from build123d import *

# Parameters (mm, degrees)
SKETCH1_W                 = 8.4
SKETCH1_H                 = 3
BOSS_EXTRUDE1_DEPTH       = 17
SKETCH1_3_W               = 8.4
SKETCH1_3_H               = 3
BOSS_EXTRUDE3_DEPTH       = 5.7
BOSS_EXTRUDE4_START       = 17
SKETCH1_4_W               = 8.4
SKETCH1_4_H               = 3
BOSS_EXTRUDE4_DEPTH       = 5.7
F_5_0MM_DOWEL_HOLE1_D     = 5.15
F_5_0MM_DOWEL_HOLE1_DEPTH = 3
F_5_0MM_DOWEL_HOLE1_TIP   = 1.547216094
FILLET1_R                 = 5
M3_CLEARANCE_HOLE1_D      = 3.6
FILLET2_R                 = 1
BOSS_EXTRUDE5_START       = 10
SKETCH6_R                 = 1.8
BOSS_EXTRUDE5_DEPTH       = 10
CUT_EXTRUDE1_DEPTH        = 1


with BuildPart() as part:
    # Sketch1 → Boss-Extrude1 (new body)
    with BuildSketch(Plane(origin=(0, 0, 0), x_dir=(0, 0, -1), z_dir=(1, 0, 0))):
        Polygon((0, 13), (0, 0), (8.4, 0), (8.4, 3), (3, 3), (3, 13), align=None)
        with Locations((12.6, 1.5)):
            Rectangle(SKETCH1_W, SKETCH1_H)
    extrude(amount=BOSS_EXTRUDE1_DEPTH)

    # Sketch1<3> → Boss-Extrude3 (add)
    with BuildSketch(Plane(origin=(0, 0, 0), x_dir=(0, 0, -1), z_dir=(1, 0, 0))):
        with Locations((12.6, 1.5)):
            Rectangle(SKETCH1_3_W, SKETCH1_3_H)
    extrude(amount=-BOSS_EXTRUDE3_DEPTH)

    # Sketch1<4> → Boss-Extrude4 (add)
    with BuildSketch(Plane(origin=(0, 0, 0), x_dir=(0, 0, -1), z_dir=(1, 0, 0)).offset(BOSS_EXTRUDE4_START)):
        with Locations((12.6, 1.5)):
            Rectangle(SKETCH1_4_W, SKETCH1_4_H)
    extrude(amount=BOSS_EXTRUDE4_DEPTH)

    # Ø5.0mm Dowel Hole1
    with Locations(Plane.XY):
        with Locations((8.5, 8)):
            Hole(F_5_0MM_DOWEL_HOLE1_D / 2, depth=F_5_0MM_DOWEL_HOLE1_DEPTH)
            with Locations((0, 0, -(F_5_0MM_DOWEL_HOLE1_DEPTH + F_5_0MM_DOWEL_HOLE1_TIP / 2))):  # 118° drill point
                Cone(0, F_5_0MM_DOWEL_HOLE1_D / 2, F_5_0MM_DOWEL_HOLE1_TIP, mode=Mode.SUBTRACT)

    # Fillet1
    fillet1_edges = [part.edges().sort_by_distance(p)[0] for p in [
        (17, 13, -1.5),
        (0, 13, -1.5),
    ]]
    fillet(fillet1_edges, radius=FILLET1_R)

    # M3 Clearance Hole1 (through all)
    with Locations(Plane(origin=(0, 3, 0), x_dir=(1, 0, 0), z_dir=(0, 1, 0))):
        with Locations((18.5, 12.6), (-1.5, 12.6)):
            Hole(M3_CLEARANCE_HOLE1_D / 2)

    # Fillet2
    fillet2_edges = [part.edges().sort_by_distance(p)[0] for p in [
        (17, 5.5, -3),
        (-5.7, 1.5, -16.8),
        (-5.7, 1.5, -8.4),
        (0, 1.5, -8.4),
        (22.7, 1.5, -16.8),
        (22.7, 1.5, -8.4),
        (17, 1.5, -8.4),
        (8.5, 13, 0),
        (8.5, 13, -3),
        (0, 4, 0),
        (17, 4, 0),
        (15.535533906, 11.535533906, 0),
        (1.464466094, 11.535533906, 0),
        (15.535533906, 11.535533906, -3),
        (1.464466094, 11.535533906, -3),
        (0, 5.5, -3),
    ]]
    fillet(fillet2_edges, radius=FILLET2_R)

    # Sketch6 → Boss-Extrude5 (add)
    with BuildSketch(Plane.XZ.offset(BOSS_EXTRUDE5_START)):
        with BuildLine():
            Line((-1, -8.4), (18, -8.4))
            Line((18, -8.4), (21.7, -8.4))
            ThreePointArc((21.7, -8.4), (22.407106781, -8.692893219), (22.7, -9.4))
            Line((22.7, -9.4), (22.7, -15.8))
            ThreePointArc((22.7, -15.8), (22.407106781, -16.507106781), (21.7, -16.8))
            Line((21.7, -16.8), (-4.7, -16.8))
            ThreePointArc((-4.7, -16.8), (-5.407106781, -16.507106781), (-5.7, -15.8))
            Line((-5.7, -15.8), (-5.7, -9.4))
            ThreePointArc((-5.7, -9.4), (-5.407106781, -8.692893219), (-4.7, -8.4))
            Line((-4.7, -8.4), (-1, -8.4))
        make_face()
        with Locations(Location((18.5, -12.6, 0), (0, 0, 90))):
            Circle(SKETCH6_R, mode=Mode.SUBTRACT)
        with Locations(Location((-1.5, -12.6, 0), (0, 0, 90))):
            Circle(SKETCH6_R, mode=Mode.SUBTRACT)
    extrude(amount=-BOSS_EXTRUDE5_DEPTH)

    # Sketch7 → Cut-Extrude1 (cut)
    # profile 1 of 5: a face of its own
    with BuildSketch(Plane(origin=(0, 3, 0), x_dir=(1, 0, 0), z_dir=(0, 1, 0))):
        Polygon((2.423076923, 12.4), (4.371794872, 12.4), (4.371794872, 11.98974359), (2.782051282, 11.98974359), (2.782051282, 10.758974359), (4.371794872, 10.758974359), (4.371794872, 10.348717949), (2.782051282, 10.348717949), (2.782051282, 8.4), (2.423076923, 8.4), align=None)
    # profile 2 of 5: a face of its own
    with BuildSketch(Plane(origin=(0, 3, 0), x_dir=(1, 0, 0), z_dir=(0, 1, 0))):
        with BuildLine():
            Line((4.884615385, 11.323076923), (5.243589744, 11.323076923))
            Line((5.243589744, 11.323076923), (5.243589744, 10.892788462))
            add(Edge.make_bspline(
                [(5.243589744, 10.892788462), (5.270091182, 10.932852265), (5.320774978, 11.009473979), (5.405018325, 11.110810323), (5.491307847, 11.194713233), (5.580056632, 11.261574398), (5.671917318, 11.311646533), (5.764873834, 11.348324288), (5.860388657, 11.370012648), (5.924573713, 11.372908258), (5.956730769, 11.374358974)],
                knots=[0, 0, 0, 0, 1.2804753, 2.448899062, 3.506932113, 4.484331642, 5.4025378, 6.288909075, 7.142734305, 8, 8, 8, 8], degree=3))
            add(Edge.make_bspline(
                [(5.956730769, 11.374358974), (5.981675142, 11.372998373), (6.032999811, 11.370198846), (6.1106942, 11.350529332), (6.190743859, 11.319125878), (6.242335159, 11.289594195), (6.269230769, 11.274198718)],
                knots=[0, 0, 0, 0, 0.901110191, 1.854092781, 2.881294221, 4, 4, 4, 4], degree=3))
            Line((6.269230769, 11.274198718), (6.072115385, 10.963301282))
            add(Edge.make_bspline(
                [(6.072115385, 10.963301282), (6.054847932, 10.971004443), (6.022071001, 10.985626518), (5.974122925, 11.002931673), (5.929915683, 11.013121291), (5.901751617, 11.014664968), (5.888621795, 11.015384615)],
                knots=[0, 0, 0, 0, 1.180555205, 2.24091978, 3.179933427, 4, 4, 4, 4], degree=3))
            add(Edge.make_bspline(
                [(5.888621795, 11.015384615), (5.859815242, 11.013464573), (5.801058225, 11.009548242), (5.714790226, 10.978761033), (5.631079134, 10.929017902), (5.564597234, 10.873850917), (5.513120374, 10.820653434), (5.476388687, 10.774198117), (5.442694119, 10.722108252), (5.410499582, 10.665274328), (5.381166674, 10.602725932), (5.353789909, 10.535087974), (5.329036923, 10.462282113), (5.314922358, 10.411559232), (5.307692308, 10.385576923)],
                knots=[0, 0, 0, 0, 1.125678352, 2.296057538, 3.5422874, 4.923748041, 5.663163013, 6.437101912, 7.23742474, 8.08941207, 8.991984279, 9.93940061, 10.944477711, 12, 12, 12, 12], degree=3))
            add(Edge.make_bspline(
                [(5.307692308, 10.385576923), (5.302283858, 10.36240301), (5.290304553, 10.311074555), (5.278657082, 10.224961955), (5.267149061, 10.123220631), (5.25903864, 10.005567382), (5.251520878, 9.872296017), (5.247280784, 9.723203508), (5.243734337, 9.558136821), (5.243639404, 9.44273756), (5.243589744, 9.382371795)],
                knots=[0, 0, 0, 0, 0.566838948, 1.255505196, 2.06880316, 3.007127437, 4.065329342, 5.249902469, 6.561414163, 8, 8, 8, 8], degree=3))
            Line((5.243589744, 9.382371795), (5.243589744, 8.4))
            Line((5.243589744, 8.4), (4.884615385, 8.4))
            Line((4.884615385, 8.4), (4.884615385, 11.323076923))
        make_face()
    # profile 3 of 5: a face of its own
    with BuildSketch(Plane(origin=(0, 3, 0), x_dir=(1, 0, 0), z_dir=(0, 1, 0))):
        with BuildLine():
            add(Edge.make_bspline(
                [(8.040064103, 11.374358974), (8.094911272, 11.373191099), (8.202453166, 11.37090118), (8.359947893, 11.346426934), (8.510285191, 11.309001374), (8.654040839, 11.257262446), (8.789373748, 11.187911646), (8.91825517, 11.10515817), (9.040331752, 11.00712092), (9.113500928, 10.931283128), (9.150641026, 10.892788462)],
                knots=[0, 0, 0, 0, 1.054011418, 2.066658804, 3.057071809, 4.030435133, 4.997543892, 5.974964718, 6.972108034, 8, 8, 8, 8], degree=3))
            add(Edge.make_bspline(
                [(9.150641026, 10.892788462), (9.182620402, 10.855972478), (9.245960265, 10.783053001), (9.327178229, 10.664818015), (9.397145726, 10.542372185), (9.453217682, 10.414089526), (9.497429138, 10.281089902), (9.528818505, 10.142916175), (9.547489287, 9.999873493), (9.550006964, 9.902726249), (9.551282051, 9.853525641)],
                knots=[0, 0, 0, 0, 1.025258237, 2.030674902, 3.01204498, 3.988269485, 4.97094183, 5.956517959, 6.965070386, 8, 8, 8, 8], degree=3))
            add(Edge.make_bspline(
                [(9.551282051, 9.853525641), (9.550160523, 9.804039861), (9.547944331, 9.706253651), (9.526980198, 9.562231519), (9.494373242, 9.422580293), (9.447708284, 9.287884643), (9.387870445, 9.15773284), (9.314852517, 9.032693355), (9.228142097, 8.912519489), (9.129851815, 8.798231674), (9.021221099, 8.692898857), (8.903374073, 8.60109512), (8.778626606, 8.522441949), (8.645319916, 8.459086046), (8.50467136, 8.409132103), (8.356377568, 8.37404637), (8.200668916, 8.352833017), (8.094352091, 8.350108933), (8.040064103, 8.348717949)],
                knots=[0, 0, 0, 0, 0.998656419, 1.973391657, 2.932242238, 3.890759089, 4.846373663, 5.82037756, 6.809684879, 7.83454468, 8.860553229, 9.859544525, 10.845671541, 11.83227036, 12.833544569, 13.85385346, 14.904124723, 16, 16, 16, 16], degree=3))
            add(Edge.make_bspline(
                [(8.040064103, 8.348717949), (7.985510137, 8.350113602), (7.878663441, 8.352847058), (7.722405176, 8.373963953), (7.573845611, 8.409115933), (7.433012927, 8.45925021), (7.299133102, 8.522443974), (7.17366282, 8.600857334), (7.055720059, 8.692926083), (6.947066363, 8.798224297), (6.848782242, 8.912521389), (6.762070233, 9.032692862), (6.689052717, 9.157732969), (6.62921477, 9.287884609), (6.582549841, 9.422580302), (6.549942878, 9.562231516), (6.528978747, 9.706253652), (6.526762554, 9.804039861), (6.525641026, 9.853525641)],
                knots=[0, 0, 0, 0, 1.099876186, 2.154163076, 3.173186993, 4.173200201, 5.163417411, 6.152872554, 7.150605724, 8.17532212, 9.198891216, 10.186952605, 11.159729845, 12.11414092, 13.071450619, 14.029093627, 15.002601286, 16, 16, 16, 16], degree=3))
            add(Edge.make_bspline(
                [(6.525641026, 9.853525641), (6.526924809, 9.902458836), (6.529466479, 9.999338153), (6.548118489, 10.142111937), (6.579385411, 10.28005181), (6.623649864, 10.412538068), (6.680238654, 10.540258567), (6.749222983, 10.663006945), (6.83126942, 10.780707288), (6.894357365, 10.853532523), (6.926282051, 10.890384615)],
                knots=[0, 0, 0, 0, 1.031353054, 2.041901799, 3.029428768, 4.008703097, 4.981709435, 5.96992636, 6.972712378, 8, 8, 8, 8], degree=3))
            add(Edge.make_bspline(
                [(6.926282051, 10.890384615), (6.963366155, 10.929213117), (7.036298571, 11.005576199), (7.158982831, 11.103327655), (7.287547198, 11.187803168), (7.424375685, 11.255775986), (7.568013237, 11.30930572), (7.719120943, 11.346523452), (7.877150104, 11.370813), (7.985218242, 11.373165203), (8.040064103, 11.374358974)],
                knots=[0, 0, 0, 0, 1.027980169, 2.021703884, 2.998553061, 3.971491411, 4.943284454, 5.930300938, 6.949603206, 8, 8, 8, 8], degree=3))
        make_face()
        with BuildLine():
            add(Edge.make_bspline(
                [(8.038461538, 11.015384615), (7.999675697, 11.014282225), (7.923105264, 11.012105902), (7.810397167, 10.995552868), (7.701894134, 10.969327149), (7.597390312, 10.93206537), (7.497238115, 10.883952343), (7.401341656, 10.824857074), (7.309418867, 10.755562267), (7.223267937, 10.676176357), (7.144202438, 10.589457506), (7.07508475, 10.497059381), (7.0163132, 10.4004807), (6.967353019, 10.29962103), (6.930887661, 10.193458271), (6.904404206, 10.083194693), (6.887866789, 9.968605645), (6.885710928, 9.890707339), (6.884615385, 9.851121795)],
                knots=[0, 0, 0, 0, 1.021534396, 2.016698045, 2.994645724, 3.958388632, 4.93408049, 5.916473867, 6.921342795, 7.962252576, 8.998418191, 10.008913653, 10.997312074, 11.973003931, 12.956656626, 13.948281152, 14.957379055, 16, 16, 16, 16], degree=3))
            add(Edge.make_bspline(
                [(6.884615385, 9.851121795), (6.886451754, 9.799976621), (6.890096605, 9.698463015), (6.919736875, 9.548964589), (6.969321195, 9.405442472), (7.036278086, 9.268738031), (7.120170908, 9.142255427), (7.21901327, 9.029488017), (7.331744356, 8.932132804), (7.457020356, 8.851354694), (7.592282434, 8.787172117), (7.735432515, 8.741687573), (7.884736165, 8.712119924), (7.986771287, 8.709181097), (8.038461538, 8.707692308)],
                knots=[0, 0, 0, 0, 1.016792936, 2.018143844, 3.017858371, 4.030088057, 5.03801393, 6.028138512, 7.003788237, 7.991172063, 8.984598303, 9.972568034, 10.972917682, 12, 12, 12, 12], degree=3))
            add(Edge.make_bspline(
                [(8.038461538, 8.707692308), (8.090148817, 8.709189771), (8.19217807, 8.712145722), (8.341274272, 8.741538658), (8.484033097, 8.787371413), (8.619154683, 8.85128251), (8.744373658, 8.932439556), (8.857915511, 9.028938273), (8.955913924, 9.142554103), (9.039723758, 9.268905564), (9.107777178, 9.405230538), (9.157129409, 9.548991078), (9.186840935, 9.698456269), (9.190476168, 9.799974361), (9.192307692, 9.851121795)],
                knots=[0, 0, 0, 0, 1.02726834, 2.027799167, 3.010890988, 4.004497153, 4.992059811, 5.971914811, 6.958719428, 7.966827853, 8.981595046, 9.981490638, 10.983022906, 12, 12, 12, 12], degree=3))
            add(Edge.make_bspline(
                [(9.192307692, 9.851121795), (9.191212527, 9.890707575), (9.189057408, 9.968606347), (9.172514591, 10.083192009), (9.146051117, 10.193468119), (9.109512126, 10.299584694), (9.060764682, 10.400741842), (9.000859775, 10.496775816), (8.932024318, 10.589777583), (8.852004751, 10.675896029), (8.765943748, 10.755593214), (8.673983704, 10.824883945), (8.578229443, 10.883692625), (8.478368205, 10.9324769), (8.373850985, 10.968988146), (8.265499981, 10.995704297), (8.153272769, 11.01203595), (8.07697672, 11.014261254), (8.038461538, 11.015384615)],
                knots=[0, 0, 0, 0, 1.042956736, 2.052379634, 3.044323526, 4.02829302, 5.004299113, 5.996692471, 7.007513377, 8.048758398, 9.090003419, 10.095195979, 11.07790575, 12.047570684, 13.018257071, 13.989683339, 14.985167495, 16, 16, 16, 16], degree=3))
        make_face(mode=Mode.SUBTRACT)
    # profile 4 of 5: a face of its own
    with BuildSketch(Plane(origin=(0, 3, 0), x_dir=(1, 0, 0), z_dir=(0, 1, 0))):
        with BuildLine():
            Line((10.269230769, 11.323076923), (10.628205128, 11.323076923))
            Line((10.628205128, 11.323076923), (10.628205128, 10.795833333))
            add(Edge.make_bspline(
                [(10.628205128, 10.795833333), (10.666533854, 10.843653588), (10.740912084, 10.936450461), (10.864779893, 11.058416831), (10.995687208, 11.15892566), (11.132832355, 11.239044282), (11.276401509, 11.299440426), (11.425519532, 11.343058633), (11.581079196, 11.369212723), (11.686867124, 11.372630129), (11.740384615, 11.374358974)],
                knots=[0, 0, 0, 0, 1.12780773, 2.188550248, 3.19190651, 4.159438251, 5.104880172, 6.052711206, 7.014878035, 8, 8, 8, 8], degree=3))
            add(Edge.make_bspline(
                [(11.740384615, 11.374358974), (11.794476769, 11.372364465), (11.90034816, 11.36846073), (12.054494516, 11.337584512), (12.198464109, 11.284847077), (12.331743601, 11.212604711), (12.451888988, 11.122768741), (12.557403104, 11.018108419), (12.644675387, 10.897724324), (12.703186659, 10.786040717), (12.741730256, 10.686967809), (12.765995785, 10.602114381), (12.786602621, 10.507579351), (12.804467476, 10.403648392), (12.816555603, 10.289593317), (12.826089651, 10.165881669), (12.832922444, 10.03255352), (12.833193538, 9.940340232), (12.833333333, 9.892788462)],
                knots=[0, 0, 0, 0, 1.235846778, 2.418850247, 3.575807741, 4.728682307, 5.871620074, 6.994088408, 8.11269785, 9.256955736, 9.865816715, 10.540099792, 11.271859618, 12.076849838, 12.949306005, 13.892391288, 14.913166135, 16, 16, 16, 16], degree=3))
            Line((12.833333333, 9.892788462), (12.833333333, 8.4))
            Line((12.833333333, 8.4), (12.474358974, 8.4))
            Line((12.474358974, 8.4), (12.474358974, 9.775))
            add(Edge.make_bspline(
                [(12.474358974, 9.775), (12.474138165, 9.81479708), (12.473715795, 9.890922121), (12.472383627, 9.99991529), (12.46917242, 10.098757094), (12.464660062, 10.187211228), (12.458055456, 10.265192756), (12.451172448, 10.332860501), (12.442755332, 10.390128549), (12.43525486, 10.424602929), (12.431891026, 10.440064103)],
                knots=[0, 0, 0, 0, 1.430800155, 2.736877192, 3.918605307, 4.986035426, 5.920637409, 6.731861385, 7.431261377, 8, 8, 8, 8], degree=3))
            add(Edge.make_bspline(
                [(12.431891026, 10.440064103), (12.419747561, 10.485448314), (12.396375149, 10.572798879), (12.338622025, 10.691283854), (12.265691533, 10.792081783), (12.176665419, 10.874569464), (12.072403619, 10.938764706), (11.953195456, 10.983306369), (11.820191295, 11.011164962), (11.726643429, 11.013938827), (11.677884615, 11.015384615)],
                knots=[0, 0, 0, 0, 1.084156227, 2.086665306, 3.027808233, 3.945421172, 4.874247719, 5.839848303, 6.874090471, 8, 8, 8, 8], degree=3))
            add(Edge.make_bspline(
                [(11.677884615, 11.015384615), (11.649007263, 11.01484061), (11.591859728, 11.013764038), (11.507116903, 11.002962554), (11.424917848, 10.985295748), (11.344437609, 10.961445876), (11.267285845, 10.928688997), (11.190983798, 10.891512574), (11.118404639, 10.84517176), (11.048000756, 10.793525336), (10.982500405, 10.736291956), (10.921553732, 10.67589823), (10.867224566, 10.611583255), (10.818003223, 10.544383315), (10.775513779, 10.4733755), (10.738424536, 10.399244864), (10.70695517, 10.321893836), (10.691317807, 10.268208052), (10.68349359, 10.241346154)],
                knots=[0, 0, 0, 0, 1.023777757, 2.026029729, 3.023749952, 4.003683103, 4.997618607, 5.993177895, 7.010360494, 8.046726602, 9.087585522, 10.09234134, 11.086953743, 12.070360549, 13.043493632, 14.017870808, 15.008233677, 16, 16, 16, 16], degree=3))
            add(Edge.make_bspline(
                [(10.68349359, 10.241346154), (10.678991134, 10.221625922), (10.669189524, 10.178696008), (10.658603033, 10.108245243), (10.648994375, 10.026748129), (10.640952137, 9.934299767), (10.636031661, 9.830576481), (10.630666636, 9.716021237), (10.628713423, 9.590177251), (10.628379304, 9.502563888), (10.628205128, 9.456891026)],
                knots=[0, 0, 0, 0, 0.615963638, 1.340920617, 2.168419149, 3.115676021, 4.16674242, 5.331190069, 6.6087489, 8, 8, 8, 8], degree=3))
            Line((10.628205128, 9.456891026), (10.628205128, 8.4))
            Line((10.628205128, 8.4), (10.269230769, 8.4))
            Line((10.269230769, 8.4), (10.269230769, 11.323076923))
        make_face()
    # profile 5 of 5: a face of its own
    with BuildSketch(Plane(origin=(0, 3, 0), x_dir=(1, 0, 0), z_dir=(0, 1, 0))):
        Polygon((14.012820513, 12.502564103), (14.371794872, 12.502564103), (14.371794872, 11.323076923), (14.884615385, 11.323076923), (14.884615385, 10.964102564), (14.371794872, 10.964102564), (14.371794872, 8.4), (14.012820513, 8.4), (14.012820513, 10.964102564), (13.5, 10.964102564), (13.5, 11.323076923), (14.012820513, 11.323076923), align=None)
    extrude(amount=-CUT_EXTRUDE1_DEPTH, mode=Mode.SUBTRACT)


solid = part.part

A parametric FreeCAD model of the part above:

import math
import FreeCAD as App
import Part
import Sketcher

V = App.Vector
Q = App.Units.Quantity


def edges_at(feature, points):
    """Names of the edges that pass closest to the given points."""
    edges = feature.Shape.Edges
    near = lambda p: min(range(len(edges)), key=lambda i: edges[i].distToShape(Part.Vertex(*p))[0])
    return sorted({f"Edge{near(p) + 1}" for p in points})


def add_polygon(sketch, points):
    """Adds a closed chain of lines whose ends are joined by coincident constraints."""
    first, n = sketch.GeometryCount, len(points)
    for a, b in zip(points, points[1:] + points[:1]):
        sketch.addGeometry(Part.LineSegment(App.Vector(*a, 0), App.Vector(*b, 0)), False)
    for i in range(n):
        sketch.addConstraint(Sketcher.Constraint("Coincident", first + i, 2, first + (i + 1) % n, 1))

doc = App.newDocument("Part")
params = doc.addObject("Spreadsheet::Sheet", "Params")
for row, (alias, value) in enumerate([
    ("sketch1_width", "13 mm"),
    ("sketch1_width2", "3 mm"),
    ("sketch1_height", "16.8 mm"),
    ("pad1_length", "17 mm"),
    ("sketch2_width", "3 mm"),
    ("sketch2_height", "8.4 mm"),
    ("pad2_length", "5.7 mm"),
    ("sketch3_width", "3 mm"),
    ("sketch3_height", "8.4 mm"),
    ("pad3_length", "5.7 mm"),
    ("sketch4_diameter", "5.15 mm"),
    ("hole_diameter", "5.15 mm"),
    ("hole_depth", "3 mm"),
    ("fillet_radius", "5 mm"),
    ("sketch5_diameter", "3.6 mm"),
    ("hole2_diameter", "3.6 mm"),
    ("fillet2_radius", "1 mm"),
    ("sketch6_radius", "1 mm"),
    ("sketch6_diameter", "3.6 mm"),
    ("sketch6_width", "26.4 mm"),
    ("sketch6_height", "6.4 mm"),
    ("pad4_length", "10 mm"),
    ("sketch7_height", "4 mm"),
    ("pocket1_length", "1 mm"),
], start=1):
    params.set(f"A{row}", alias)
    params.set(f"B{row}", "=" + value)
    params.setAlias(f"B{row}", alias)

body = doc.addObject("PartDesign::Body", "Body")

sketch1 = body.newObject("Sketcher::SketchObject", "Sketch")
sketch1.AttachmentSupport = (doc.getObject("YZ_Plane"), [""])
sketch1.MapMode = "FlatFace"
add_polygon(sketch1, [(13, 0), (0, 0), (0, -16.8), (3, -16.8), (3, -3), (13, -3)])
sketch1.addConstraint([
    Sketcher.Constraint("Horizontal", 0),
    Sketcher.Constraint("Vertical", 1),
    Sketcher.Constraint("Horizontal", 2),
    Sketcher.Constraint("Vertical", 3),
    Sketcher.Constraint("Horizontal", 4),
    Sketcher.Constraint("Vertical", 5),
    Sketcher.Constraint("Coincident", 0, 2, -1, 1),
    Sketcher.Constraint("Equal", 2, 5),
    Sketcher.Constraint("DistanceX", 0, 2, 0, 1, Q("13 mm")),
    Sketcher.Constraint("DistanceX", 2, 1, 2, 2, Q("3 mm")),
    Sketcher.Constraint("DistanceY", 1, 2, 1, 1, Q("16.8 mm")),
])
sketch1.setExpression("Constraints[14]", "Params.sketch1_width")
sketch1.setExpression("Constraints[15]", "Params.sketch1_width2")
sketch1.setExpression("Constraints[16]", "Params.sketch1_height")
pad1 = body.newObject("PartDesign::Pad", "Pad")
pad1.Profile = sketch1
pad1.setExpression("Length", "Params.pad1_length")

sketch2 = body.newObject("Sketcher::SketchObject", "Sketch001")
sketch2.AttachmentSupport = (doc.getObject("YZ_Plane"), [""])
sketch2.MapMode = "FlatFace"
add_polygon(sketch2, [(3, -8.4), (0, -8.4), (0, -16.8), (3, -16.8)])
sketch2.addConstraint([
    Sketcher.Constraint("Horizontal", 0),
    Sketcher.Constraint("Vertical", 1),
    Sketcher.Constraint("Horizontal", 2),
    Sketcher.Constraint("Vertical", 3),
    Sketcher.Constraint("PointOnObject", 0, 2, -2),
    Sketcher.Constraint("DistanceX", 0, 2, 0, 1, Q("3 mm")),
    Sketcher.Constraint("DistanceY", 1, 2, 1, 1, Q("8.4 mm")),
    Sketcher.Constraint("DistanceY", 0, 2, -1, 1, Q("8.4 mm")),
])
sketch2.setExpression("Constraints[9]", "Params.sketch2_width")
sketch2.setExpression("Constraints[10]", "Params.sketch2_height")
pad2 = body.newObject("PartDesign::Pad", "Pad001")
pad2.Profile = sketch2
pad2.setExpression("Length", "Params.pad2_length")
pad2.Reversed = True

sketch3 = body.newObject("Sketcher::SketchObject", "Sketch002")
sketch3.AttachmentSupport = (doc.getObject("YZ_Plane"), [""])
sketch3.MapMode = "FlatFace"
sketch3.AttachmentOffset = App.Placement(V(0, 0, 17), App.Rotation())
add_polygon(sketch3, [(3, -8.4), (0, -8.4), (0, -16.8), (3, -16.8)])
sketch3.addConstraint([
    Sketcher.Constraint("Horizontal", 0),
    Sketcher.Constraint("Vertical", 1),
    Sketcher.Constraint("Horizontal", 2),
    Sketcher.Constraint("Vertical", 3),
    Sketcher.Constraint("PointOnObject", 0, 2, -2),
    Sketcher.Constraint("DistanceX", 0, 2, 0, 1, Q("3 mm")),
    Sketcher.Constraint("DistanceY", 1, 2, 1, 1, Q("8.4 mm")),
    Sketcher.Constraint("DistanceY", 0, 2, -1, 1, Q("8.4 mm")),
])
sketch3.setExpression("Constraints[9]", "Params.sketch3_width")
sketch3.setExpression("Constraints[10]", "Params.sketch3_height")
pad3 = body.newObject("PartDesign::Pad", "Pad002")
pad3.Profile = sketch3
pad3.setExpression("Length", "Params.pad3_length")

sketch4 = body.newObject("Sketcher::SketchObject", "Sketch003")
sketch4.AttachmentSupport = (doc.getObject("XY_Plane"), [""])
sketch4.MapMode = "FlatFace"
sketch4.addGeometry(Part.Circle(V(8.5, 8, 0), V(0, 0, 1), 2.575), False)
sketch4.addConstraint([
    Sketcher.Constraint("Diameter", 0, Q("5.15 mm")),
    Sketcher.Constraint("DistanceY", -1, 1, 0, 3, Q("8 mm")),
    Sketcher.Constraint("DistanceX", -1, 1, 0, 3, Q("8.5 mm")),
])
sketch4.setExpression("Constraints[0]", "Params.sketch4_diameter")
doc.recompute()
hole = body.newObject("PartDesign::Hole", "Hole")
hole.Profile = sketch4
hole.ThreadType = "None"
hole.setExpression("Diameter", "Params.hole_diameter")
hole.DepthType = "Dimension"
hole.setExpression("Depth", "Params.hole_depth")
hole.DrillPoint = "Angled"
hole.DrillPointAngle = 118
doc.recompute()

fillet = body.newObject("PartDesign::Fillet", "Fillet")
fillet.Base = (hole, edges_at(hole, [(17, 13, -1.5), (0, 13, -1.5)]))
fillet.setExpression("Radius", "Params.fillet_radius")

sketch5 = body.newObject("Sketcher::SketchObject", "Sketch004")
sketch5.AttachmentSupport = (doc.getObject("XZ_Plane"), [""])
sketch5.MapMode = "FlatFace"
sketch5.AttachmentOffset = App.Placement(V(0, 0, -3), App.Rotation())
sketch5.addGeometry([
    Part.Circle(V(18.5, -12.6, 0), V(0, 0, 1), 1.8),
    Part.Circle(V(-1.5, -12.6, 0), V(0, 0, 1), 1.8),
], False)
sketch5.addConstraint([
    Sketcher.Constraint("Equal", 0, 1),
    Sketcher.Constraint("Horizontal", 0, 3, 1, 3),
    Sketcher.Constraint("Diameter", 0, Q("3.6 mm")),
    Sketcher.Constraint("DistanceX", 1, 3, 0, 3, Q("20 mm")),
    Sketcher.Constraint("DistanceX", -1, 1, 0, 3, Q("18.5 mm")),
    Sketcher.Constraint("DistanceY", 0, 3, -1, 1, Q("12.6 mm")),
])
sketch5.setExpression("Constraints[2]", "Params.sketch5_diameter")
doc.recompute()
hole2 = body.newObject("PartDesign::Hole", "Hole001")
hole2.Profile = sketch5
hole2.ThreadType = "None"
hole2.setExpression("Diameter", "Params.hole2_diameter")
hole2.DepthType = "ThroughAll"
hole2.Reversed = True
doc.recompute()

fillet2 = body.newObject("PartDesign::Fillet", "Fillet001")
fillet2.Base = (hole2, edges_at(hole2, [
    (17, 5.5, -3),
    (-5.7, 1.5, -16.8),
    (-5.7, 1.5, -8.4),
    (0, 1.5, -8.4),
    (22.7, 1.5, -16.8),
    (22.7, 1.5, -8.4),
    (17, 1.5, -8.4),
    (8.5, 13, 0),
    (8.5, 13, -3),
    (0, 4, 0),
    (17, 4, 0),
    (15.536, 11.536, 0),
    (1.464, 11.536, 0),
    (15.536, 11.536, -3),
    (1.464, 11.536, -3),
    (0, 5.5, -3),
]))
fillet2.setExpression("Radius", "Params.fillet2_radius")

sketch6 = body.newObject("Sketcher::SketchObject", "Sketch005")
sketch6.AttachmentSupport = (doc.getObject("XZ_Plane"), [""])
sketch6.MapMode = "FlatFace"
sketch6.AttachmentOffset = App.Placement(V(0, 0, 10), App.Rotation())
sketch6.addGeometry([
    Part.ArcOfCircle(Part.Circle(V(21.7, -9.4, 0), V(0, 0, 1), 1), math.radians(0), math.radians(90)),
    Part.LineSegment(V(21.7, -8.4, 0), V(-4.7, -8.4, 0)),
    Part.ArcOfCircle(Part.Circle(V(-4.7, -9.4, 0), V(0, 0, 1), 1), math.radians(90), math.radians(180)),
    Part.LineSegment(V(-5.7, -9.4, 0), V(-5.7, -15.8, 0)),
    Part.ArcOfCircle(Part.Circle(V(-4.7, -15.8, 0), V(0, 0, 1), 1), math.radians(-180), math.radians(-90)),
    Part.LineSegment(V(-4.7, -16.8, 0), V(21.7, -16.8, 0)),
    Part.ArcOfCircle(Part.Circle(V(21.7, -15.8, 0), V(0, 0, 1), 1), math.radians(-90), math.radians(0)),
    Part.LineSegment(V(22.7, -15.8, 0), V(22.7, -9.4, 0)),
    Part.Circle(V(18.5, -12.6, 0), V(0, 0, 1), 1.8),
    Part.Circle(V(-1.5, -12.6, 0), V(0, 0, 1), 1.8),
], False)
sketch6.addConstraint([
    Sketcher.Constraint("Tangent", 0, 2, 1, 1),
    Sketcher.Constraint("Tangent", 1, 2, 2, 1),
    Sketcher.Constraint("Tangent", 2, 2, 3, 1),
    Sketcher.Constraint("Tangent", 3, 2, 4, 1),
    Sketcher.Constraint("Tangent", 4, 2, 5, 1),
    Sketcher.Constraint("Tangent", 5, 2, 6, 1),
    Sketcher.Constraint("Tangent", 6, 2, 7, 1),
    Sketcher.Constraint("Tangent", 7, 2, 0, 1),
    Sketcher.Constraint("Horizontal", 1),
    Sketcher.Constraint("Vertical", 3),
    Sketcher.Constraint("Horizontal", 5),
    Sketcher.Constraint("Vertical", 7),
    Sketcher.Constraint("Equal", 0, 2),
    Sketcher.Constraint("Equal", 2, 4),
    Sketcher.Constraint("Equal", 4, 6),
    Sketcher.Constraint("Equal", 8, 9),
    Sketcher.Constraint("Horizontal", 8, 3, 9, 3),
    Sketcher.Constraint("Radius", 0, Q("1 mm")),
    Sketcher.Constraint("Diameter", 8, Q("3.6 mm")),
    Sketcher.Constraint("DistanceX", 1, 2, 1, 1, Q("26.4 mm")),
    Sketcher.Constraint("DistanceY", 3, 2, 3, 1, Q("6.4 mm")),
    Sketcher.Constraint("DistanceX", 9, 3, 8, 3, Q("20 mm")),
    Sketcher.Constraint("DistanceX", -1, 1, 0, 3, Q("21.7 mm")),
    Sketcher.Constraint("DistanceY", 0, 3, -1, 1, Q("9.4 mm")),
    Sketcher.Constraint("DistanceX", -1, 1, 8, 3, Q("18.5 mm")),
    Sketcher.Constraint("DistanceY", 8, 3, -1, 1, Q("12.6 mm")),
])
sketch6.setExpression("Constraints[17]", "Params.sketch6_radius")
sketch6.setExpression("Constraints[18]", "Params.sketch6_diameter")
sketch6.setExpression("Constraints[19]", "Params.sketch6_width")
sketch6.setExpression("Constraints[20]", "Params.sketch6_height")
pad4 = body.newObject("PartDesign::Pad", "Pad003")
pad4.Profile = sketch6
pad4.setExpression("Length", "Params.pad4_length")
pad4.Reversed = True

sketch7 = body.newObject("Sketcher::SketchObject", "Sketch006")
sketch7.AttachmentSupport = (doc.getObject("XZ_Plane"), [""])
sketch7.MapMode = "FlatFace"
sketch7.AttachmentOffset = App.Placement(V(0, 0, -3), App.Rotation())
add_polygon(sketch7, [(4.371795, -12.4), (2.423077, -12.4), (2.423077, -8.4), (2.782051, -8.4), (2.782051, -10.348718), (4.371795, -10.348718), (4.371795, -10.758974), (2.782051, -10.758974), (2.782051, -11.989744), (4.371795, -11.989744)])
sketch7.addGeometry(Part.LineSegment(V(5.24359, -11.323077, 0), V(4.884615, -11.323077, 0)), False)
sketch7.addGeometry(Part.LineSegment(V(4.884615, -11.323077, 0), V(4.884615, -8.4, 0)), False)
sketch7.addGeometry(Part.LineSegment(V(4.884615, -8.4, 0), V(5.24359, -8.4, 0)), False)
sketch7.addGeometry(Part.LineSegment(V(5.24359, -8.4, 0), V(5.24359, -9.382372, 0)), False)
sketch7.addGeometry(Part.BSplineCurve([V(5.307692, -10.385577, 0), V(5.302284, -10.362403, 0), V(5.290305, -10.311075, 0), V(5.278657, -10.224962, 0), V(5.267149, -10.123221, 0), V(5.259039, -10.005567, 0), V(5.251521, -9.872296, 0), V(5.247281, -9.723204, 0), V(5.243734, -9.558137, 0), V(5.243639, -9.442738, 0), V(5.24359, -9.382372, 0)], [4, 1, 1, 1, 1, 1, 1, 1, 4], [0, 0.566838948, 1.255505196, 2.06880316, 3.007127437, 4.065329342, 5.249902469, 6.561414163, 8], False, 3, [1, 1, 1, 1, 1, 1, 1, 1, 1, 1, 1], False), False)
sketch7.addGeometry(Part.BSplineCurve([V(5.888622, -11.015385, 0), V(5.859815, -11.013465, 0), V(5.801058, -11.009548, 0), V(5.71479, -10.978761, 0), V(5.631079, -10.929018, 0), V(5.564597, -10.873851, 0), V(5.51312, -10.820653, 0), V(5.476389, -10.774198, 0), V(5.442694, -10.722108, 0), V(5.4105, -10.665274, 0), V(5.381167, -10.602726, 0), V(5.35379, -10.535088, 0), V(5.329037, -10.462282, 0), V(5.314922, -10.411559, 0), V(5.307692, -10.385577, 0)], [4, 1, 1, 1, 1, 1, 1, 1, 1, 1, 1, 1, 4], [0, 1.125678352, 2.296057538, 3.5422874, 4.923748041, 5.663163013, 6.437101912, 7.23742474, 8.08941207, 8.991984279, 9.93940061, 10.944477711, 12], False, 3, [1, 1, 1, 1, 1, 1, 1, 1, 1, 1, 1, 1, 1, 1, 1], False), False)
sketch7.addGeometry(Part.BSplineCurve([V(6.072115, -10.963301, 0), V(6.054848, -10.971004, 0), V(6.022071, -10.985627, 0), V(5.974123, -11.002932, 0), V(5.929916, -11.013121, 0), V(5.901752, -11.014665, 0), V(5.888622, -11.015385, 0)], [4, 1, 1, 1, 4], [0, 1.180555205, 2.24091978, 3.179933427, 4], False, 3, [1, 1, 1, 1, 1, 1, 1], False), False)
sketch7.addGeometry(Part.LineSegment(V(6.072115, -10.963301, 0), V(6.269231, -11.274199, 0)), False)
sketch7.addGeometry(Part.BSplineCurve([V(5.956731, -11.374359, 0), V(5.981675, -11.372998, 0), V(6.033, -11.370199, 0), V(6.110694, -11.350529, 0), V(6.190744, -11.319126, 0), V(6.242335, -11.289594, 0), V(6.269231, -11.274199, 0)], [4, 1, 1, 1, 4], [0, 0.901110191, 1.854092781, 2.881294221, 4], False, 3, [1, 1, 1, 1, 1, 1, 1], False), False)
sketch7.addGeometry(Part.BSplineCurve([V(5.24359, -10.892788, 0), V(5.270091, -10.932852, 0), V(5.320775, -11.009474, 0), V(5.405018, -11.11081, 0), V(5.491308, -11.194713, 0), V(5.580057, -11.261574, 0), V(5.671917, -11.311647, 0), V(5.764874, -11.348324, 0), V(5.860389, -11.370013, 0), V(5.924574, -11.372908, 0), V(5.956731, -11.374359, 0)], [4, 1, 1, 1, 1, 1, 1, 1, 4], [0, 1.2804753, 2.448899062, 3.506932113, 4.484331642, 5.4025378, 6.288909075, 7.142734305, 8], False, 3, [1, 1, 1, 1, 1, 1, 1, 1, 1, 1, 1], False), False)
sketch7.addGeometry(Part.LineSegment(V(5.24359, -10.892788, 0), V(5.24359, -11.323077, 0)), False)
sketch7.addGeometry(Part.BSplineCurve([V(8.040064, -11.374359, 0), V(8.094911, -11.373191, 0), V(8.202453, -11.370901, 0), V(8.359948, -11.346427, 0), V(8.510285, -11.309001, 0), V(8.654041, -11.257262, 0), V(8.789374, -11.187912, 0), V(8.918255, -11.105158, 0), V(9.040332, -11.007121, 0), V(9.113501, -10.931283, 0), V(9.150641, -10.892788, 0)], [4, 1, 1, 1, 1, 1, 1, 1, 4], [0, 1.054011418, 2.066658804, 3.057071809, 4.030435133, 4.997543892, 5.974964718, 6.972108034, 8], False, 3, [1, 1, 1, 1, 1, 1, 1, 1, 1, 1, 1], False), False)
sketch7.addGeometry(Part.BSplineCurve([V(6.926282, -10.890385, 0), V(6.963366, -10.929213, 0), V(7.036299, -11.005576, 0), V(7.158983, -11.103328, 0), V(7.287547, -11.187803, 0), V(7.424376, -11.255776, 0), V(7.568013, -11.309306, 0), V(7.719121, -11.346523, 0), V(7.87715, -11.370813, 0), V(7.985218, -11.373165, 0), V(8.040064, -11.374359, 0)], [4, 1, 1, 1, 1, 1, 1, 1, 4], [0, 1.027980169, 2.021703884, 2.998553061, 3.971491411, 4.943284454, 5.930300938, 6.949603206, 8], False, 3, [1, 1, 1, 1, 1, 1, 1, 1, 1, 1, 1], False), False)
sketch7.addGeometry(Part.BSplineCurve([V(6.525641, -9.853526, 0), V(6.526925, -9.902459, 0), V(6.529466, -9.999338, 0), V(6.548118, -10.142112, 0), V(6.579385, -10.280052, 0), V(6.62365, -10.412538, 0), V(6.680239, -10.540259, 0), V(6.749223, -10.663007, 0), V(6.831269, -10.780707, 0), V(6.894357, -10.853533, 0), V(6.926282, -10.890385, 0)], [4, 1, 1, 1, 1, 1, 1, 1, 4], [0, 1.031353054, 2.041901799, 3.029428768, 4.008703097, 4.981709435, 5.96992636, 6.972712378, 8], False, 3, [1, 1, 1, 1, 1, 1, 1, 1, 1, 1, 1], False), False)
sketch7.addGeometry(Part.BSplineCurve([V(8.040064, -8.348718, 0), V(7.98551, -8.350114, 0), V(7.878663, -8.352847, 0), V(7.722405, -8.373964, 0), V(7.573846, -8.409116, 0), V(7.433013, -8.45925, 0), V(7.299133, -8.522444, 0), V(7.173663, -8.600857, 0), V(7.05572, -8.692926, 0), V(6.947066, -8.798224, 0), V(6.848782, -8.912521, 0), V(6.76207, -9.032693, 0), V(6.689053, -9.157733, 0), V(6.629215, -9.287885, 0), V(6.58255, -9.42258, 0), V(6.549943, -9.562232, 0), V(6.528979, -9.706254, 0), V(6.526763, -9.80404, 0), V(6.525641, -9.853526, 0)], [4, 1, 1, 1, 1, 1, 1, 1, 1, 1, 1, 1, 1, 1, 1, 1, 4], [0, 1.099876186, 2.154163076, 3.173186993, 4.173200201, 5.163417411, 6.152872554, 7.150605724, 8.17532212, 9.198891216, 10.186952605, 11.159729845, 12.11414092, 13.071450619, 14.029093627, 15.002601286, 16], False, 3, [1, 1, 1, 1, 1, 1, 1, 1, 1, 1, 1, 1, 1, 1, 1, 1, 1, 1, 1], False), False)
sketch7.addGeometry(Part.BSplineCurve([V(9.551282, -9.853526, 0), V(9.550161, -9.80404, 0), V(9.547944, -9.706254, 0), V(9.52698, -9.562232, 0), V(9.494373, -9.42258, 0), V(9.447708, -9.287885, 0), V(9.38787, -9.157733, 0), V(9.314853, -9.032693, 0), V(9.228142, -8.912519, 0), V(9.129852, -8.798232, 0), V(9.021221, -8.692899, 0), V(8.903374, -8.601095, 0), V(8.778627, -8.522442, 0), V(8.64532, -8.459086, 0), V(8.504671, -8.409132, 0), V(8.356378, -8.374046, 0), V(8.200669, -8.352833, 0), V(8.094352, -8.350109, 0), V(8.040064, -8.348718, 0)], [4, 1, 1, 1, 1, 1, 1, 1, 1, 1, 1, 1, 1, 1, 1, 1, 4], [0, 0.998656419, 1.973391657, 2.932242238, 3.890759089, 4.846373663, 5.82037756, 6.809684879, 7.83454468, 8.860553229, 9.859544525, 10.845671541, 11.83227036, 12.833544569, 13.85385346, 14.904124723, 16], False, 3, [1, 1, 1, 1, 1, 1, 1, 1, 1, 1, 1, 1, 1, 1, 1, 1, 1, 1, 1], False), False)
sketch7.addGeometry(Part.BSplineCurve([V(9.150641, -10.892788, 0), V(9.18262, -10.855972, 0), V(9.24596, -10.783053, 0), V(9.327178, -10.664818, 0), V(9.397146, -10.542372, 0), V(9.453218, -10.41409, 0), V(9.497429, -10.28109, 0), V(9.528819, -10.142916, 0), V(9.547489, -9.999873, 0), V(9.550007, -9.902726, 0), V(9.551282, -9.853526, 0)], [4, 1, 1, 1, 1, 1, 1, 1, 4], [0, 1.025258237, 2.030674902, 3.01204498, 3.988269485, 4.97094183, 5.956517959, 6.965070386, 8], False, 3, [1, 1, 1, 1, 1, 1, 1, 1, 1, 1, 1], False), False)
sketch7.addGeometry(Part.BSplineCurve([V(9.192308, -9.851122, 0), V(9.191213, -9.890708, 0), V(9.189057, -9.968606, 0), V(9.172515, -10.083192, 0), V(9.146051, -10.193468, 0), V(9.109512, -10.299585, 0), V(9.060765, -10.400742, 0), V(9.00086, -10.496776, 0), V(8.932024, -10.589778, 0), V(8.852005, -10.675896, 0), V(8.765944, -10.755593, 0), V(8.673984, -10.824884, 0), V(8.578229, -10.883693, 0), V(8.478368, -10.932477, 0), V(8.373851, -10.968988, 0), V(8.2655, -10.995704, 0), V(8.153273, -11.012036, 0), V(8.076977, -11.014261, 0), V(8.038462, -11.015385, 0)], [4, 1, 1, 1, 1, 1, 1, 1, 1, 1, 1, 1, 1, 1, 1, 1, 4], [0, 1.042956736, 2.052379634, 3.044323526, 4.02829302, 5.004299113, 5.996692471, 7.007513377, 8.048758398, 9.090003419, 10.095195979, 11.07790575, 12.047570684, 13.018257071, 13.989683339, 14.985167495, 16], False, 3, [1, 1, 1, 1, 1, 1, 1, 1, 1, 1, 1, 1, 1, 1, 1, 1, 1, 1, 1], False), False)
sketch7.addGeometry(Part.BSplineCurve([V(8.038462, -8.707692, 0), V(8.090149, -8.70919, 0), V(8.192178, -8.712146, 0), V(8.341274, -8.741539, 0), V(8.484033, -8.787371, 0), V(8.619155, -8.851283, 0), V(8.744374, -8.93244, 0), V(8.857916, -9.028938, 0), V(8.955914, -9.142554, 0), V(9.039724, -9.268906, 0), V(9.107777, -9.405231, 0), V(9.157129, -9.548991, 0), V(9.186841, -9.698456, 0), V(9.190476, -9.799974, 0), V(9.192308, -9.851122, 0)], [4, 1, 1, 1, 1, 1, 1, 1, 1, 1, 1, 1, 4], [0, 1.02726834, 2.027799167, 3.010890988, 4.004497153, 4.992059811, 5.971914811, 6.958719428, 7.966827853, 8.981595046, 9.981490638, 10.983022906, 12], False, 3, [1, 1, 1, 1, 1, 1, 1, 1, 1, 1, 1, 1, 1, 1, 1], False), False)
sketch7.addGeometry(Part.BSplineCurve([V(6.884615, -9.851122, 0), V(6.886452, -9.799977, 0), V(6.890097, -9.698463, 0), V(6.919737, -9.548965, 0), V(6.969321, -9.405442, 0), V(7.036278, -9.268738, 0), V(7.120171, -9.142255, 0), V(7.219013, -9.029488, 0), V(7.331744, -8.932133, 0), V(7.45702, -8.851355, 0), V(7.592282, -8.787172, 0), V(7.735433, -8.741688, 0), V(7.884736, -8.71212, 0), V(7.986771, -8.709181, 0), V(8.038462, -8.707692, 0)], [4, 1, 1, 1, 1, 1, 1, 1, 1, 1, 1, 1, 4], [0, 1.016792936, 2.018143844, 3.017858371, 4.030088057, 5.03801393, 6.028138512, 7.003788237, 7.991172063, 8.984598303, 9.972568034, 10.972917682, 12], False, 3, [1, 1, 1, 1, 1, 1, 1, 1, 1, 1, 1, 1, 1, 1, 1], False), False)
sketch7.addGeometry(Part.BSplineCurve([V(8.038462, -11.015385, 0), V(7.999676, -11.014282, 0), V(7.923105, -11.012106, 0), V(7.810397, -10.995553, 0), V(7.701894, -10.969327, 0), V(7.59739, -10.932065, 0), V(7.497238, -10.883952, 0), V(7.401342, -10.824857, 0), V(7.309419, -10.755562, 0), V(7.223268, -10.676176, 0), V(7.144202, -10.589458, 0), V(7.075085, -10.497059, 0), V(7.016313, -10.400481, 0), V(6.967353, -10.299621, 0), V(6.930888, -10.193458, 0), V(6.904404, -10.083195, 0), V(6.887867, -9.968606, 0), V(6.885711, -9.890707, 0), V(6.884615, -9.851122, 0)], [4, 1, 1, 1, 1, 1, 1, 1, 1, 1, 1, 1, 1, 1, 1, 1, 4], [0, 1.021534396, 2.016698045, 2.994645724, 3.958388632, 4.93408049, 5.916473867, 6.921342795, 7.962252576, 8.998418191, 10.008913653, 10.997312074, 11.973003931, 12.956656626, 13.948281152, 14.957379055, 16], False, 3, [1, 1, 1, 1, 1, 1, 1, 1, 1, 1, 1, 1, 1, 1, 1, 1, 1, 1, 1], False), False)
sketch7.addGeometry(Part.LineSegment(V(10.628205, -11.323077, 0), V(10.269231, -11.323077, 0)), False)
sketch7.addGeometry(Part.LineSegment(V(10.269231, -11.323077, 0), V(10.269231, -8.4, 0)), False)
sketch7.addGeometry(Part.LineSegment(V(10.269231, -8.4, 0), V(10.628205, -8.4, 0)), False)
sketch7.addGeometry(Part.LineSegment(V(10.628205, -8.4, 0), V(10.628205, -9.456891, 0)), False)
sketch7.addGeometry(Part.BSplineCurve([V(10.683494, -10.241346, 0), V(10.678991, -10.221626, 0), V(10.66919, -10.178696, 0), V(10.658603, -10.108245, 0), V(10.648994, -10.026748, 0), V(10.640952, -9.9343, 0), V(10.636032, -9.830576, 0), V(10.630667, -9.716021, 0), V(10.628713, -9.590177, 0), V(10.628379, -9.502564, 0), V(10.628205, -9.456891, 0)], [4, 1, 1, 1, 1, 1, 1, 1, 4], [0, 0.615963638, 1.340920617, 2.168419149, 3.115676021, 4.16674242, 5.331190069, 6.6087489, 8], False, 3, [1, 1, 1, 1, 1, 1, 1, 1, 1, 1, 1], False), False)
sketch7.addGeometry(Part.BSplineCurve([V(11.677885, -11.015385, 0), V(11.649007, -11.014841, 0), V(11.59186, -11.013764, 0), V(11.507117, -11.002963, 0), V(11.424918, -10.985296, 0), V(11.344438, -10.961446, 0), V(11.267286, -10.928689, 0), V(11.190984, -10.891513, 0), V(11.118405, -10.845172, 0), V(11.048001, -10.793525, 0), V(10.9825, -10.736292, 0), V(10.921554, -10.675898, 0), V(10.867225, -10.611583, 0), V(10.818003, -10.544383, 0), V(10.775514, -10.473375, 0), V(10.738425, -10.399245, 0), V(10.706955, -10.321894, 0), V(10.691318, -10.268208, 0), V(10.683494, -10.241346, 0)], [4, 1, 1, 1, 1, 1, 1, 1, 1, 1, 1, 1, 1, 1, 1, 1, 4], [0, 1.023777757, 2.026029729, 3.023749952, 4.003683103, 4.997618607, 5.993177895, 7.010360494, 8.046726602, 9.087585522, 10.09234134, 11.086953743, 12.070360549, 13.043493632, 14.017870808, 15.008233677, 16], False, 3, [1, 1, 1, 1, 1, 1, 1, 1, 1, 1, 1, 1, 1, 1, 1, 1, 1, 1, 1], False), False)
sketch7.addGeometry(Part.BSplineCurve([V(12.431891, -10.440064, 0), V(12.419748, -10.485448, 0), V(12.396375, -10.572799, 0), V(12.338622, -10.691284, 0), V(12.265692, -10.792082, 0), V(12.176665, -10.874569, 0), V(12.072404, -10.938765, 0), V(11.953195, -10.983306, 0), V(11.820191, -11.011165, 0), V(11.726643, -11.013939, 0), V(11.677885, -11.015385, 0)], [4, 1, 1, 1, 1, 1, 1, 1, 4], [0, 1.084156227, 2.086665306, 3.027808233, 3.945421172, 4.874247719, 5.839848303, 6.874090471, 8], False, 3, [1, 1, 1, 1, 1, 1, 1, 1, 1, 1, 1], False), False)
sketch7.addGeometry(Part.BSplineCurve([V(12.474359, -9.775, 0), V(12.474138, -9.814797, 0), V(12.473716, -9.890922, 0), V(12.472384, -9.999915, 0), V(12.469172, -10.098757, 0), V(12.46466, -10.187211, 0), V(12.458055, -10.265193, 0), V(12.451172, -10.332861, 0), V(12.442755, -10.390129, 0), V(12.435255, -10.424603, 0), V(12.431891, -10.440064, 0)], [4, 1, 1, 1, 1, 1, 1, 1, 4], [0, 1.430800155, 2.736877192, 3.918605307, 4.986035426, 5.920637409, 6.731861385, 7.431261377, 8], False, 3, [1, 1, 1, 1, 1, 1, 1, 1, 1, 1, 1], False), False)
sketch7.addGeometry(Part.LineSegment(V(12.474359, -9.775, 0), V(12.474359, -8.4, 0)), False)
sketch7.addGeometry(Part.LineSegment(V(12.474359, -8.4, 0), V(12.833333, -8.4, 0)), False)
sketch7.addGeometry(Part.LineSegment(V(12.833333, -8.4, 0), V(12.833333, -9.892788, 0)), False)
sketch7.addGeometry(Part.BSplineCurve([V(11.740385, -11.374359, 0), V(11.794477, -11.372364, 0), V(11.900348, -11.368461, 0), V(12.054495, -11.337585, 0), V(12.198464, -11.284847, 0), V(12.331744, -11.212605, 0), V(12.451889, -11.122769, 0), V(12.557403, -11.018108, 0), V(12.644675, -10.897724, 0), V(12.703187, -10.786041, 0), V(12.74173, -10.686968, 0), V(12.765996, -10.602114, 0), V(12.786603, -10.507579, 0), V(12.804467, -10.403648, 0), V(12.816556, -10.289593, 0), V(12.82609, -10.165882, 0), V(12.832922, -10.032554, 0), V(12.833194, -9.94034, 0), V(12.833333, -9.892788, 0)], [4, 1, 1, 1, 1, 1, 1, 1, 1, 1, 1, 1, 1, 1, 1, 1, 4], [0, 1.235846778, 2.418850247, 3.575807741, 4.728682307, 5.871620074, 6.994088408, 8.11269785, 9.256955736, 9.865816715, 10.540099792, 11.271859618, 12.076849838, 12.949306005, 13.892391288, 14.913166135, 16], False, 3, [1, 1, 1, 1, 1, 1, 1, 1, 1, 1, 1, 1, 1, 1, 1, 1, 1, 1, 1], False), False)
sketch7.addGeometry(Part.BSplineCurve([V(10.628205, -10.795833, 0), V(10.666534, -10.843654, 0), V(10.740912, -10.93645, 0), V(10.86478, -11.058417, 0), V(10.995687, -11.158926, 0), V(11.132832, -11.239044, 0), V(11.276402, -11.29944, 0), V(11.42552, -11.343059, 0), V(11.581079, -11.369213, 0), V(11.686867, -11.37263, 0), V(11.740385, -11.374359, 0)], [4, 1, 1, 1, 1, 1, 1, 1, 4], [0, 1.12780773, 2.188550248, 3.19190651, 4.159438251, 5.104880172, 6.052711206, 7.014878035, 8], False, 3, [1, 1, 1, 1, 1, 1, 1, 1, 1, 1, 1], False), False)
sketch7.addGeometry(Part.LineSegment(V(10.628205, -10.795833, 0), V(10.628205, -11.323077, 0)), False)
add_polygon(sketch7, [(14.371795, -12.502564), (14.012821, -12.502564), (14.012821, -11.323077), (13.5, -11.323077), (13.5, -10.964103), (14.012821, -10.964103), (14.012821, -8.4), (14.371795, -8.4), (14.371795, -10.964103), (14.884615, -10.964103), (14.884615, -11.323077), (14.371795, -11.323077)])
sketch7.addConstraint([
    Sketcher.Constraint("Block", 14),
    Sketcher.Constraint("Block", 15),
    Sketcher.Constraint("Block", 16),
    Sketcher.Constraint("Block", 18),
    Sketcher.Constraint("Block", 19),
    Sketcher.Constraint("Block", 21),
    Sketcher.Constraint("Block", 22),
    Sketcher.Constraint("Block", 23),
    Sketcher.Constraint("Block", 24),
    Sketcher.Constraint("Block", 25),
    Sketcher.Constraint("Block", 26),
    Sketcher.Constraint("Block", 27),
    Sketcher.Constraint("Block", 28),
    Sketcher.Constraint("Block", 29),
    Sketcher.Constraint("Block", 30),
    Sketcher.Constraint("Block", 35),
    Sketcher.Constraint("Block", 36),
    Sketcher.Constraint("Block", 37),
    Sketcher.Constraint("Block", 38),
    Sketcher.Constraint("Block", 42),
    Sketcher.Constraint("Block", 43),
    Sketcher.Constraint("Coincident", 10, 2, 11, 1),
    Sketcher.Constraint("Coincident", 11, 2, 12, 1),
    Sketcher.Constraint("Coincident", 12, 2, 13, 1),
    Sketcher.Constraint("Coincident", 13, 2, 14, 2),
    Sketcher.Constraint("Coincident", 16, 1, 17, 1),
    Sketcher.Constraint("Coincident", 17, 2, 18, 2),
    Sketcher.Constraint("Coincident", 19, 1, 20, 1),
    Sketcher.Constraint("Coincident", 20, 2, 10, 1),
    Sketcher.Constraint("Coincident", 31, 2, 32, 1),
    Sketcher.Constraint("Coincident", 32, 2, 33, 1),
    Sketcher.Constraint("Coincident", 33, 2, 34, 1),
    Sketcher.Constraint("Coincident", 34, 2, 35, 2),
    Sketcher.Constraint("Coincident", 38, 1, 39, 1),
    Sketcher.Constraint("Coincident", 39, 2, 40, 1),
    Sketcher.Constraint("Coincident", 40, 2, 41, 1),
    Sketcher.Constraint("Coincident", 41, 2, 42, 2),
    Sketcher.Constraint("Coincident", 43, 1, 44, 1),
    Sketcher.Constraint("Coincident", 44, 2, 31, 1),
    Sketcher.Constraint("Horizontal", 0),
    Sketcher.Constraint("Vertical", 1),
    Sketcher.Constraint("Horizontal", 2),
    Sketcher.Constraint("Vertical", 3),
    Sketcher.Constraint("Horizontal", 4),
    Sketcher.Constraint("Vertical", 5),
    Sketcher.Constraint("Horizontal", 6),
    Sketcher.Constraint("Vertical", 7),
    Sketcher.Constraint("Horizontal", 8),
    Sketcher.Constraint("Vertical", 9),
    Sketcher.Constraint("Horizontal", 10),
    Sketcher.Constraint("Vertical", 11),
    Sketcher.Constraint("Horizontal", 12),
    Sketcher.Constraint("Vertical", 13),
    Sketcher.Constraint("Vertical", 20),
    Sketcher.Constraint("Horizontal", 31),
    Sketcher.Constraint("Vertical", 32),
    Sketcher.Constraint("Horizontal", 33),
    Sketcher.Constraint("Vertical", 34),
    Sketcher.Constraint("Vertical", 39),
    Sketcher.Constraint("Horizontal", 40),
    Sketcher.Constraint("Vertical", 41),
    Sketcher.Constraint("Vertical", 44),
    Sketcher.Constraint("Horizontal", 45),
    Sketcher.Constraint("Vertical", 46),
    Sketcher.Constraint("Horizontal", 47),
    Sketcher.Constraint("Vertical", 48),
    Sketcher.Constraint("Horizontal", 49),
    Sketcher.Constraint("Vertical", 50),
    Sketcher.Constraint("Horizontal", 51),
    Sketcher.Constraint("Vertical", 52),
    Sketcher.Constraint("Horizontal", 53),
    Sketcher.Constraint("Vertical", 54),
    Sketcher.Constraint("Horizontal", 55),
    Sketcher.Constraint("Vertical", 56),
    Sketcher.Constraint("Horizontal", 2, 2, 11, 2),
    Sketcher.Constraint("Horizontal", 20, 2, 31, 2),
    Sketcher.Constraint("Horizontal", 12, 2, 32, 2),
    Sketcher.Constraint("Horizontal", 33, 2, 39, 2),
    Sketcher.Constraint("Horizontal", 44, 2, 46, 2),
    Sketcher.Constraint("Horizontal", 40, 2, 50, 2),
    Sketcher.Constraint("Horizontal", 49, 2, 52, 2),
    Sketcher.Constraint("Horizontal", 47, 2, 54, 2),
    Sketcher.Constraint("Vertical", 3, 2, 6, 2),
    Sketcher.Constraint("Vertical", 5, 2, 8, 2),
    Sketcher.Constraint("Vertical", 46, 2, 49, 2),
    Sketcher.Constraint("Vertical", 52, 2, 55, 2),
    Sketcher.Constraint("Equal", 2, 10),
    Sketcher.Constraint("Equal", 12, 31),
    Sketcher.Constraint("Equal", 33, 40),
    Sketcher.Constraint("Equal", 40, 45),
    Sketcher.Constraint("Equal", 49, 53),
    Sketcher.Constraint("Equal", 0, 3),
    Sketcher.Constraint("Equal", 5, 9),
    Sketcher.Constraint("Equal", 51, 48),
    Sketcher.Constraint("DistanceY", 1, 1, 1, 2, Q("4 mm")),
    Sketcher.Constraint("DistanceY", 0, 2, -1, 1, Q("12.4 mm")),
    Sketcher.Constraint("DistanceX", -1, 1, 47, 2, Q("13.5 mm")),
    Sketcher.Constraint("DistanceX", 47, 2, 47, 1, Q("0.512821 mm")),
    Sketcher.Constraint("DistanceY", 7, 2, 7, 1, Q("1.230769 mm")),
    Sketcher.Constraint("DistanceY", 20, 2, 20, 1, Q("0.430288 mm")),
    Sketcher.Constraint("DistanceX", 0, 2, 0, 1, Q("1.948718 mm")),
    Sketcher.Constraint("DistanceY", 46, 1, 46, 2, Q("1.179487 mm")),
    Sketcher.Constraint("DistanceX", -1, 1, 2, 2, Q("2.782051 mm")),
])
sketch7.setExpression("Constraints[116]", "Params.sketch7_height")
pocket1 = body.newObject("PartDesign::Pocket", "Pocket")
pocket1.Profile = sketch7
pocket1.setExpression("Length", "Params.pocket1_length")
pocket1.Reversed = True

doc.recompute()
